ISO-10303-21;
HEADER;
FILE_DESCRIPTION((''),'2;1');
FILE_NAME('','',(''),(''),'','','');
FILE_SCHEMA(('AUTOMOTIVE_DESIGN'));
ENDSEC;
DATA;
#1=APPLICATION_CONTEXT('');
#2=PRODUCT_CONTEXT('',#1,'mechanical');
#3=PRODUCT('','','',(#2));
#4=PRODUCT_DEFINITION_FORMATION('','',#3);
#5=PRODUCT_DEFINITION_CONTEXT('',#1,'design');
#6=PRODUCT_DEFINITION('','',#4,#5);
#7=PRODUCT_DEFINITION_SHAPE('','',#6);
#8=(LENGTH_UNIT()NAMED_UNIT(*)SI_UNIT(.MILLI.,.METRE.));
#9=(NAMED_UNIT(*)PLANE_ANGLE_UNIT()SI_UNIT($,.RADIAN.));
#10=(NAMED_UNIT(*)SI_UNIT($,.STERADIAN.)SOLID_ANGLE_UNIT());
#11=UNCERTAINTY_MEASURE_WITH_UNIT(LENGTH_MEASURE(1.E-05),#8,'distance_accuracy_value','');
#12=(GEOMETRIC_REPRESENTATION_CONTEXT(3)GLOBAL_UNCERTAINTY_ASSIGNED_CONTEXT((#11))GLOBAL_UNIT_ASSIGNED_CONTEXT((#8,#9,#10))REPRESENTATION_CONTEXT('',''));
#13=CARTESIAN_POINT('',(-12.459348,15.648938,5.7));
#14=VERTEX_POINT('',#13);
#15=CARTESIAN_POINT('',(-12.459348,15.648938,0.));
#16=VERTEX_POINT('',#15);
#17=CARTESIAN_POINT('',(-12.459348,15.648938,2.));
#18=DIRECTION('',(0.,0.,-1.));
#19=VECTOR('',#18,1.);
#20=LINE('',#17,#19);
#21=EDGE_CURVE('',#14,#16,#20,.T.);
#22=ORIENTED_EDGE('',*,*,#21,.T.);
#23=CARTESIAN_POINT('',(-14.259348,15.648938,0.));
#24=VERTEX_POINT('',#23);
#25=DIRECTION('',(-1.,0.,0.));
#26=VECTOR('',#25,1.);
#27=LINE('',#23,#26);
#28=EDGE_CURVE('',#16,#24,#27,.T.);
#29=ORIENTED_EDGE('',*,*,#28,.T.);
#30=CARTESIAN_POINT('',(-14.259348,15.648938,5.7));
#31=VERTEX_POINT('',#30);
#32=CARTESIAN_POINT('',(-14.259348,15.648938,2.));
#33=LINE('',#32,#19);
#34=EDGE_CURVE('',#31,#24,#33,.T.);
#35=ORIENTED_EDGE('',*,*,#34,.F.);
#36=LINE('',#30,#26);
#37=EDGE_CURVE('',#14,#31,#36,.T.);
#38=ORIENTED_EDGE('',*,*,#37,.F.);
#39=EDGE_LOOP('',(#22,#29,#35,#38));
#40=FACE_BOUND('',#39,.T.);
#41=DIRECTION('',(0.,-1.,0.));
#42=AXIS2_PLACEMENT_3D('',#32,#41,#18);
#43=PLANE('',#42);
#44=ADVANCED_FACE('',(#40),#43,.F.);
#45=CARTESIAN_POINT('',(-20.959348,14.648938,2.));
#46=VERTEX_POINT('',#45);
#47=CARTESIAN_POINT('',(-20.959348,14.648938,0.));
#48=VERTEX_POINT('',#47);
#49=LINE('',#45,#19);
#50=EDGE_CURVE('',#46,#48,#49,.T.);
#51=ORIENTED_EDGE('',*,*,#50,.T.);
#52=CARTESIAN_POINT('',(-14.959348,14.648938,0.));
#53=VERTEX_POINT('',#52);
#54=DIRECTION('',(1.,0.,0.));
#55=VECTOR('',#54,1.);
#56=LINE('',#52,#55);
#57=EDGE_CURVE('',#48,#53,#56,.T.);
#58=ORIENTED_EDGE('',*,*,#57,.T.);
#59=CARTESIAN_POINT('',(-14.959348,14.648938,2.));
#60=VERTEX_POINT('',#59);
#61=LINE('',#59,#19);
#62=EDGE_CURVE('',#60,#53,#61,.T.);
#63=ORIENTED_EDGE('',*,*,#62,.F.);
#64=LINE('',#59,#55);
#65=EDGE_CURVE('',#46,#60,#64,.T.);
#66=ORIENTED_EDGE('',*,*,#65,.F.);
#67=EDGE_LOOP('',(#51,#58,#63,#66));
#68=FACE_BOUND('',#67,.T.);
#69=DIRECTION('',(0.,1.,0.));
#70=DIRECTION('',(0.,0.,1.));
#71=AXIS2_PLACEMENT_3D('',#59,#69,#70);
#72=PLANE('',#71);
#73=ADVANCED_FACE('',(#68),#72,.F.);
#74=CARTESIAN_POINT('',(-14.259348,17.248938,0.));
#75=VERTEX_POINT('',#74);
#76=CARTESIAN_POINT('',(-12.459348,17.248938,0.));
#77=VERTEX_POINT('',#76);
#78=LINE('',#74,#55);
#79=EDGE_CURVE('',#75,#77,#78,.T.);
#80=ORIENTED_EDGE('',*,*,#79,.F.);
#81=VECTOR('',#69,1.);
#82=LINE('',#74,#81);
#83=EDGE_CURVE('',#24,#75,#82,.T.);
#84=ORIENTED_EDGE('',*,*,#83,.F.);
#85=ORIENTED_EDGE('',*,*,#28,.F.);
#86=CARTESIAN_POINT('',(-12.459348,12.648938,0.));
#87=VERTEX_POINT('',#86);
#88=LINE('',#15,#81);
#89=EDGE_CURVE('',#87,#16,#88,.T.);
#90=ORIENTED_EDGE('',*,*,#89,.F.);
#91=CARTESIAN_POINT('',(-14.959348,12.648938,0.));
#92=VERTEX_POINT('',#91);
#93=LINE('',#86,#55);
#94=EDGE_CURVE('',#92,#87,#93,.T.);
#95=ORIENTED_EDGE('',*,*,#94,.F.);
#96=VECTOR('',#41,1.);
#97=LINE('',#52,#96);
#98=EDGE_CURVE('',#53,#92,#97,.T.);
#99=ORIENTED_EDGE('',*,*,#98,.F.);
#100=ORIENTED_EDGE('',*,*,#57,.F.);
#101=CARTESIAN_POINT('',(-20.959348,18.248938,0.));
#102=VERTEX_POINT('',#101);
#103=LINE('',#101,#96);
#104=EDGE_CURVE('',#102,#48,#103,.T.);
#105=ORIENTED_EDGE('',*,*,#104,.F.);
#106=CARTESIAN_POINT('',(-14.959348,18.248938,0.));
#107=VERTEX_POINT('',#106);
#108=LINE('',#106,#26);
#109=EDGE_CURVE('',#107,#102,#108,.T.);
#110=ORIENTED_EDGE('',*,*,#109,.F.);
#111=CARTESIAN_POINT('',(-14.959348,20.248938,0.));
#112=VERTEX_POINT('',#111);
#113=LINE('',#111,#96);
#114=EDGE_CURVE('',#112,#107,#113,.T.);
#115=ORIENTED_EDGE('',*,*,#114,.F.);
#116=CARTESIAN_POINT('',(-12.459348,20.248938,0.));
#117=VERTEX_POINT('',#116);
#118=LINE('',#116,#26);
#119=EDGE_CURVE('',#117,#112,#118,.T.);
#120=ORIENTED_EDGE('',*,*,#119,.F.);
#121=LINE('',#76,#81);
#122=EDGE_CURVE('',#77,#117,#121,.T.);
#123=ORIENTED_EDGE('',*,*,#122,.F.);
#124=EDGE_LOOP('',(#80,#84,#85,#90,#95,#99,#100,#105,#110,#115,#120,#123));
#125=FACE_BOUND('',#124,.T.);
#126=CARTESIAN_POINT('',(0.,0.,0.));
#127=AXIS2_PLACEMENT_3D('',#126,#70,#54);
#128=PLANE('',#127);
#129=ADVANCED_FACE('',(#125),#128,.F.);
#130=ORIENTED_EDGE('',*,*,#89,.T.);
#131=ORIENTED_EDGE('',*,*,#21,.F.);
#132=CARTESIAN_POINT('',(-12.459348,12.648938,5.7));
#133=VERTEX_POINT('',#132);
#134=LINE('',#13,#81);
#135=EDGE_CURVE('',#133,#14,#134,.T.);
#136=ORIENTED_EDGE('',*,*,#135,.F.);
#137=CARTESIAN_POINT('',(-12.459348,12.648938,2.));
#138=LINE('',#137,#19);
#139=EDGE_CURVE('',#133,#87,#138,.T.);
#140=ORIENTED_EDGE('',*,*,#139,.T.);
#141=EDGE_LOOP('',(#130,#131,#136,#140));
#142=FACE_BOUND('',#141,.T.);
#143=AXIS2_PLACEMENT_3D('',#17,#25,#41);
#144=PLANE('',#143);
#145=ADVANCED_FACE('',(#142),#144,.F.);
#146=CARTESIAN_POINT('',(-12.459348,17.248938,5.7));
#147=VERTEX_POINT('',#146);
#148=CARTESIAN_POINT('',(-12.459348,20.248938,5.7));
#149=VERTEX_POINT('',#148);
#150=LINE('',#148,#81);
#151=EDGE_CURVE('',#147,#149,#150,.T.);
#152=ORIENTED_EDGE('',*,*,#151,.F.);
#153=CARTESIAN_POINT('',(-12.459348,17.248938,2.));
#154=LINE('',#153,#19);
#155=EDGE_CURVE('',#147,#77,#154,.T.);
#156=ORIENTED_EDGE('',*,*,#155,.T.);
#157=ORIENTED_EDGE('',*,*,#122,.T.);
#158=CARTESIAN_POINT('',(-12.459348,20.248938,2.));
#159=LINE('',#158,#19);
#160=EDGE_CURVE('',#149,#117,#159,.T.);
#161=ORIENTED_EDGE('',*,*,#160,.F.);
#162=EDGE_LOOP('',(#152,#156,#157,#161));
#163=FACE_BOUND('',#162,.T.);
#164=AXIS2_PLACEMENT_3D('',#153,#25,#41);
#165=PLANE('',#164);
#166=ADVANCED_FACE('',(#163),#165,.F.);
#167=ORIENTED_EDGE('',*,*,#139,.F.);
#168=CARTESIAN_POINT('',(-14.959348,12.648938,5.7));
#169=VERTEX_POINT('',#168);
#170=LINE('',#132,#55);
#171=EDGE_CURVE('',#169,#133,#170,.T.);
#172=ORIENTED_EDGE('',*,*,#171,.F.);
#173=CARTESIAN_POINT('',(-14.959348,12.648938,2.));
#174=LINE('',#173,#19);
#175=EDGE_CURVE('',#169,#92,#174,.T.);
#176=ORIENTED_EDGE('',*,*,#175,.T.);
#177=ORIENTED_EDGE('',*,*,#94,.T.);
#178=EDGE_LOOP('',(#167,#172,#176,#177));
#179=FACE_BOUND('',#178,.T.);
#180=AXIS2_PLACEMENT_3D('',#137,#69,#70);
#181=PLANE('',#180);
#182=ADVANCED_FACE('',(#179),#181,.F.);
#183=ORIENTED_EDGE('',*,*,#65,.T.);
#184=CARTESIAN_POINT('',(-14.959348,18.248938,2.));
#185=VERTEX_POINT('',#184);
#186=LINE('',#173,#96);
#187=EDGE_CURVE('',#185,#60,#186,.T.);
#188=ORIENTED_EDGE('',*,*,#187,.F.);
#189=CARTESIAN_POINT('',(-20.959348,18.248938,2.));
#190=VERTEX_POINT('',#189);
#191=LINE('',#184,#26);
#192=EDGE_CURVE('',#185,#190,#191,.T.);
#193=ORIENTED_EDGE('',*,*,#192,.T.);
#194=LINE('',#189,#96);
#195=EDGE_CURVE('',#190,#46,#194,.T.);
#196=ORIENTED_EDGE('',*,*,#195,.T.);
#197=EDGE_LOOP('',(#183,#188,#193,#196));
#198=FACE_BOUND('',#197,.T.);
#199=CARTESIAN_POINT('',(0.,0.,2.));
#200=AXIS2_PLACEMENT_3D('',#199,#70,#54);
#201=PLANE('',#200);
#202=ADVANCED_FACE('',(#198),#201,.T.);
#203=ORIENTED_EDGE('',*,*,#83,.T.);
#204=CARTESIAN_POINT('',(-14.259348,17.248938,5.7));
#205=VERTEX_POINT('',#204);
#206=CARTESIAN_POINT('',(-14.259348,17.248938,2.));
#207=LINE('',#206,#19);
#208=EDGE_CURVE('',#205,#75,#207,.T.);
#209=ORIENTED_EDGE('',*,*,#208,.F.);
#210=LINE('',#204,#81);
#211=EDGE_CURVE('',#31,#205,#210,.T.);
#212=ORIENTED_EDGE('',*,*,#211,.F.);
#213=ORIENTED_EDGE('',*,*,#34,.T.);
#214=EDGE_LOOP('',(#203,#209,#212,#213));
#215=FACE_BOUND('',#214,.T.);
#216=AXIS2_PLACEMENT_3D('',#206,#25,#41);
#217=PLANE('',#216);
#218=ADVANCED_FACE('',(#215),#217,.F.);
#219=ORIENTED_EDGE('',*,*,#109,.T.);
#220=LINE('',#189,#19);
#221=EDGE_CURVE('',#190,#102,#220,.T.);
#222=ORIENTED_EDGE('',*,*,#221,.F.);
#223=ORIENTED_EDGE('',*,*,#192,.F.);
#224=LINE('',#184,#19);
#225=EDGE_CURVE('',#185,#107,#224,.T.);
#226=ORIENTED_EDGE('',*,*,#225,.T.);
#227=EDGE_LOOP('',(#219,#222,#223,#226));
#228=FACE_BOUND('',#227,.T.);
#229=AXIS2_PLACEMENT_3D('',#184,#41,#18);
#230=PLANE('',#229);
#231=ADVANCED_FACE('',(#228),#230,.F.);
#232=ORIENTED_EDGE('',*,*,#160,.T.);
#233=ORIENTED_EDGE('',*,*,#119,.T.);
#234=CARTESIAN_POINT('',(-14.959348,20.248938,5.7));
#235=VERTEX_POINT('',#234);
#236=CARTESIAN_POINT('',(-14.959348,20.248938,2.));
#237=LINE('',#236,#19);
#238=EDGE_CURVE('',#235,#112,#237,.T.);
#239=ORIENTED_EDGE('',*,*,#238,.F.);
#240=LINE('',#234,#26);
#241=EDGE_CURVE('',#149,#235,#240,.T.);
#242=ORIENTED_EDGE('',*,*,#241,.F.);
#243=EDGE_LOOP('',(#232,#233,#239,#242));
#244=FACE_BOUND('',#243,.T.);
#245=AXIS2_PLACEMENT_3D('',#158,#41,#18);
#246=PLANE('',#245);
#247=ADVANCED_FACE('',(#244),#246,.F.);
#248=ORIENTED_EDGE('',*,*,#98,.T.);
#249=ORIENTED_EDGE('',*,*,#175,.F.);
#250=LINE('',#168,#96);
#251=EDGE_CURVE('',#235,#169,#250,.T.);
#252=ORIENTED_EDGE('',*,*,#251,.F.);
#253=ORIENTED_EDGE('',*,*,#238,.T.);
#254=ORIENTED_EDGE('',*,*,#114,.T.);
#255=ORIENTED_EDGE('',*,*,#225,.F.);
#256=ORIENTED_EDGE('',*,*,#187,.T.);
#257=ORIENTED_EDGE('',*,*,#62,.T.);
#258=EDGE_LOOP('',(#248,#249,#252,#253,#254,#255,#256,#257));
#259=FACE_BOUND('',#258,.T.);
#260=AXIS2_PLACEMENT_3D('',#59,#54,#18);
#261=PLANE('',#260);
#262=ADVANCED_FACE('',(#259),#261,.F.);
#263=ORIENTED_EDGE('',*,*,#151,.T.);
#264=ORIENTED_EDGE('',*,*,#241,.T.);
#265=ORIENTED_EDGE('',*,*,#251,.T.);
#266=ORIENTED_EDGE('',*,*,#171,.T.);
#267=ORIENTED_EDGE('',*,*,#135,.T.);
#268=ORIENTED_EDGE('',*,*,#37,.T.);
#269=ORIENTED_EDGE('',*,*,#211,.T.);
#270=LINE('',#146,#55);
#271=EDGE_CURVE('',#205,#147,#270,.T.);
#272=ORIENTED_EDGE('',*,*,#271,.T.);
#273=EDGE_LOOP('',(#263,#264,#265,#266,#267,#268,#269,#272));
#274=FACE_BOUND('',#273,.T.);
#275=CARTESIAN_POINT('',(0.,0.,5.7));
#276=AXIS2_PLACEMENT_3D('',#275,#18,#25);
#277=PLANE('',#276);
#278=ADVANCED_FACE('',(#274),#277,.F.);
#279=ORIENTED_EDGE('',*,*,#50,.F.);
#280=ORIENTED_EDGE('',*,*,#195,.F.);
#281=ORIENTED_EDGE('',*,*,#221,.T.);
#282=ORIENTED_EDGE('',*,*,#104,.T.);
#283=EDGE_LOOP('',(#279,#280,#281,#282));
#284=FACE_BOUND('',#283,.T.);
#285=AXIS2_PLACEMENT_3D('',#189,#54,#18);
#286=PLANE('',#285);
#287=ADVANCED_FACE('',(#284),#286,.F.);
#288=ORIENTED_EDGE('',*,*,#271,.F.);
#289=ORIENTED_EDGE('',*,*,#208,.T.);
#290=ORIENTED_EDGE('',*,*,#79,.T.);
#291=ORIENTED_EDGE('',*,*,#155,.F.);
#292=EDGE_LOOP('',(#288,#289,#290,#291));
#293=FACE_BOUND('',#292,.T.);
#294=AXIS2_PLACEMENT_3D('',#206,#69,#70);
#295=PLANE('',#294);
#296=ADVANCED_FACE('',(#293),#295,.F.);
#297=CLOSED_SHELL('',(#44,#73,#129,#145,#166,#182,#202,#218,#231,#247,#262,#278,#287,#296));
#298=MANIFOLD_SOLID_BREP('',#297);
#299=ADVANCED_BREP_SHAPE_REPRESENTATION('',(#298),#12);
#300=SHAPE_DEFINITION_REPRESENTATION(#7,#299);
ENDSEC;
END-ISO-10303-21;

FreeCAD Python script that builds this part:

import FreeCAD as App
import Part
import Sketcher
from FreeCAD import Vector


def add_polygon(sketch, points):
    """Adds a closed chain of lines whose ends are joined by coincident constraints."""
    first, n = sketch.GeometryCount, len(points)
    for a, b in zip(points, points[1:] + points[:1]):
        sketch.addGeometry(Part.LineSegment(App.Vector(*a, 0), App.Vector(*b, 0)), False)
    for i in range(n):
        sketch.addConstraint(Sketcher.Constraint("Coincident", first + i, 2, first + (i + 1) % n, 1))

doc = App.newDocument("Part")
body = doc.addObject("PartDesign::Body", "Body")

# Sketch on XY plane
sketch1 = body.newObject("Sketcher::SketchObject", "Sketch")
sketch1.AttachmentSupport = (doc.getObject("XY_Plane"), [""])
sketch1.MapMode = "FlatFace"
add_polygon(sketch1, [(-14.3, 15.6), (-14.3, 17.2), (-12.5, 17.2), (-12.5, 20.2), (-15, 20.2), (-15, 18.2), (-21, 18.2), (-21, 14.6), (-15, 14.6), (-15, 12.6), (-12.5, 12.6), (-12.5, 15.6)])  # lines 0-11
sketch1.addConstraint([
    Sketcher.Constraint("Vertical", 0),
    Sketcher.Constraint("Horizontal", 1),
    Sketcher.Constraint("Vertical", 2),
    Sketcher.Constraint("Horizontal", 3),
    Sketcher.Constraint("Vertical", 4),
    Sketcher.Constraint("Horizontal", 5),
    Sketcher.Constraint("Vertical", 6),
    Sketcher.Constraint("Horizontal", 7),
    Sketcher.Constraint("Vertical", 8),
    Sketcher.Constraint("Horizontal", 9),
    Sketcher.Constraint("Vertical", 10),
    Sketcher.Constraint("Horizontal", 11),
    Sketcher.Constraint("Vertical", 4, 2, 7, 2),
    Sketcher.Constraint("Vertical", 2, 2, 9, 2),
    Sketcher.Constraint("Equal", 4, 8),
    Sketcher.Constraint("Equal", 2, 10),
    Sketcher.Constraint("DistanceX", 5, 2, 5, 1, 6.0),
    Sketcher.Constraint("DistanceY", 2, 1, 2, 2, 3.0),
    Sketcher.Constraint("DistanceY", 4, 2, 4, 1, 2.0),
    Sketcher.Constraint("DistanceX", 1, 1, 1, 2, 1.8),
    Sketcher.Constraint("DistanceX", 3, 2, 3, 1, 2.5),
    Sketcher.Constraint("DistanceY", 0, 1, 0, 2, 1.6),
    Sketcher.Constraint("DistanceY", -1, 1, 0, 2, 17.248938),
    Sketcher.Constraint("DistanceX", 0, 2, -1, 1, 14.259348),
])
pad1 = body.newObject("PartDesign::Pad", "Pad")
pad1.Profile = sketch1
pad1.Length = 2

# Sketch on XY plane
sketch2 = body.newObject("Sketcher::SketchObject", "Sketch001")
sketch2.AttachmentSupport = (doc.getObject("XY_Plane"), [""])
sketch2.MapMode = "FlatFace"
sketch2.AttachmentOffset = App.Placement(Vector(0, 0, 2), App.Rotation())
add_polygon(sketch2, [(-12.5, 20.2), (-15, 20.2), (-15, 12.6), (-12.5, 12.6), (-12.5, 15.6), (-14.3, 15.6), (-14.3, 17.2), (-12.5, 17.2)])  # lines 0-7
sketch2.addConstraint([
    Sketcher.Constraint("Horizontal", 0),
    Sketcher.Constraint("Vertical", 1),
    Sketcher.Constraint("Horizontal", 2),
    Sketcher.Constraint("Vertical", 3),
    Sketcher.Constraint("Horizontal", 4),
    Sketcher.Constraint("Vertical", 5),
    Sketcher.Constraint("Horizontal", 6),
    Sketcher.Constraint("Vertical", 7),
    Sketcher.Constraint("Vertical", 3, 2, 6, 2),
    Sketcher.Constraint("Equal", 3, 7),
    Sketcher.Constraint("DistanceY", 3, 1, 3, 2, 3.0),
    Sketcher.Constraint("DistanceX", 0, 2, 0, 1, 2.5),
    Sketcher.Constraint("DistanceX", 4, 2, 4, 1, 1.8),
    Sketcher.Constraint("DistanceY", 1, 2, 1, 1, 7.6),
    Sketcher.Constraint("DistanceY", -1, 1, 0, 2, 20.248938),
    Sketcher.Constraint("DistanceX", 0, 2, -1, 1, 14.959348),
])
pad2 = body.newObject("PartDesign::Pad", "Pad001")
pad2.Profile = sketch2
pad2.Length = 3.7

doc.recompute()
